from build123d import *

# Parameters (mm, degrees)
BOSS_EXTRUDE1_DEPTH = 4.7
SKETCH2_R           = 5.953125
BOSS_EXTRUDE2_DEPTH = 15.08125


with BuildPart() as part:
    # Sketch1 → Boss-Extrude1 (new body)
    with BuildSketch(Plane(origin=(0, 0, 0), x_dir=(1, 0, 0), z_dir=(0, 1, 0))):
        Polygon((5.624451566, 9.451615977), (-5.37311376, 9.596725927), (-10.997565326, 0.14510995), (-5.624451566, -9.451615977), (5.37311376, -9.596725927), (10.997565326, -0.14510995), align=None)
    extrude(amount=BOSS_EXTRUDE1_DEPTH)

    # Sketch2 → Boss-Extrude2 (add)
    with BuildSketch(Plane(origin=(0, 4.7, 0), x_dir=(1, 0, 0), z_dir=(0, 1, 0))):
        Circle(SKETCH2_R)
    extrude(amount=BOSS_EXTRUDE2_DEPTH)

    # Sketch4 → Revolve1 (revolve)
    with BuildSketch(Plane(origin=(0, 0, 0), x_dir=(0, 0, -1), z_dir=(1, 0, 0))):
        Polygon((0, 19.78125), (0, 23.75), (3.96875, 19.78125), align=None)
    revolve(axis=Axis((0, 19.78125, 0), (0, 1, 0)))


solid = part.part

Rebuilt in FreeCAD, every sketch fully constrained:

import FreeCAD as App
import Part
import Sketcher

V = App.Vector
Q = App.Units.Quantity


def add_polygon(sketch, points):
    """Adds a closed chain of lines whose ends are joined by coincident constraints."""
    first, n = sketch.GeometryCount, len(points)
    for a, b in zip(points, points[1:] + points[:1]):
        sketch.addGeometry(Part.LineSegment(App.Vector(*a, 0), App.Vector(*b, 0)), False)
    for i in range(n):
        sketch.addConstraint(Sketcher.Constraint("Coincident", first + i, 2, first + (i + 1) % n, 1))

doc = App.newDocument("Part")
params = doc.addObject("Spreadsheet::Sheet", "Params")
for row, (alias, value) in enumerate([
    ("pad1_length", "4.7 mm"),
    ("sketch2_diameter", "0.46875 in"),
    ("pad2_length", "0.59375 in"),
    ("sketch3_width", "0.15625 in"),
    ("revolution_angle", "360 deg"),
], start=1):
    params.set(f"A{row}", alias)
    params.set(f"B{row}", "=" + value)
    params.setAlias(f"B{row}", alias)

body = doc.addObject("PartDesign::Body", "Body")

sketch1 = body.newObject("Sketcher::SketchObject", "Sketch")
sketch1.AttachmentSupport = (doc.getObject("XZ_Plane"), [""])
sketch1.MapMode = "FlatFace"
add_polygon(sketch1, [(6, -9), (-5, -10), (-11, 0), (-6, 9), (5, 10), (11, 0)])
sketch1.addConstraint([
    Sketcher.Constraint("Symmetric", 0, 2, 3, 2, -1, 1),
    Sketcher.Constraint("Symmetric", 1, 2, 4, 2, -1, 1),
    Sketcher.Constraint("Symmetric", 2, 2, 5, 2, -1, 1),
    Sketcher.Constraint("Equal", 0, 1),
    Sketcher.Constraint("Equal", 1, 2),
    Sketcher.Constraint("DistanceY", 1, 2, -1, 1, Q("0.14511 mm")),
    Sketcher.Constraint("DistanceX", 2, 2, -1, 1, Q("5.624452 mm")),
    Sketcher.Constraint("DistanceX", 1, 2, 0, 2, Q("5.624452 mm")),
    Sketcher.Constraint("DistanceY", 0, 2, 2, 2, Q("19.048342 mm")),
])
pad1 = body.newObject("PartDesign::Pad", "Pad")
pad1.Profile = sketch1
pad1.setExpression("Length", "Params.pad1_length")
pad1.Reversed = True

sketch2 = body.newObject("Sketcher::SketchObject", "Sketch001")
sketch2.AttachmentSupport = (doc.getObject("XZ_Plane"), [""])
sketch2.MapMode = "FlatFace"
sketch2.AttachmentOffset = App.Placement(V(0, 0, -4.7), App.Rotation())
sketch2.addGeometry(Part.Circle(V(0, 0, 0), V(0, 0, 1), 6), False)
sketch2.addConstraint([
    Sketcher.Constraint("Coincident", 0, 3, -1, 1),
    Sketcher.Constraint("Diameter", 0, Q("0.46875 in")),
])
sketch2.setExpression("Constraints[1]", "Params.sketch2_diameter")
pad2 = body.newObject("PartDesign::Pad", "Pad001")
pad2.Profile = sketch2
pad2.setExpression("Length", "Params.pad2_length")
pad2.Reversed = True

sketch3 = body.newObject("Sketcher::SketchObject", "Sketch002")
sketch3.AttachmentSupport = (doc.getObject("YZ_Plane"), [""])
sketch3.MapMode = "FlatFace"
add_polygon(sketch3, [(23.8, 0), (19.8, 0), (19.8, -4)])
sketch3.addConstraint([
    Sketcher.Constraint("Horizontal", 0),
    Sketcher.Constraint("Vertical", 1),
    Sketcher.Constraint("PointOnObject", 0, 2, -1),
    Sketcher.Constraint("Equal", 0, 1),
    Sketcher.Constraint("DistanceX", 0, 2, 0, 1, Q("0.15625 in")),
    Sketcher.Constraint("DistanceX", -1, 1, 2, 2, Q("23.75 mm")),
])
sketch3.setExpression("Constraints[7]", "Params.sketch3_width")
revolution = body.newObject("PartDesign::Revolution", "Revolution")
revolution.Profile = sketch3
revolution.ReferenceAxis = (sketch3, ["H_Axis"])
revolution.setExpression("Angle", "Params.revolution_angle")

doc.recompute()
